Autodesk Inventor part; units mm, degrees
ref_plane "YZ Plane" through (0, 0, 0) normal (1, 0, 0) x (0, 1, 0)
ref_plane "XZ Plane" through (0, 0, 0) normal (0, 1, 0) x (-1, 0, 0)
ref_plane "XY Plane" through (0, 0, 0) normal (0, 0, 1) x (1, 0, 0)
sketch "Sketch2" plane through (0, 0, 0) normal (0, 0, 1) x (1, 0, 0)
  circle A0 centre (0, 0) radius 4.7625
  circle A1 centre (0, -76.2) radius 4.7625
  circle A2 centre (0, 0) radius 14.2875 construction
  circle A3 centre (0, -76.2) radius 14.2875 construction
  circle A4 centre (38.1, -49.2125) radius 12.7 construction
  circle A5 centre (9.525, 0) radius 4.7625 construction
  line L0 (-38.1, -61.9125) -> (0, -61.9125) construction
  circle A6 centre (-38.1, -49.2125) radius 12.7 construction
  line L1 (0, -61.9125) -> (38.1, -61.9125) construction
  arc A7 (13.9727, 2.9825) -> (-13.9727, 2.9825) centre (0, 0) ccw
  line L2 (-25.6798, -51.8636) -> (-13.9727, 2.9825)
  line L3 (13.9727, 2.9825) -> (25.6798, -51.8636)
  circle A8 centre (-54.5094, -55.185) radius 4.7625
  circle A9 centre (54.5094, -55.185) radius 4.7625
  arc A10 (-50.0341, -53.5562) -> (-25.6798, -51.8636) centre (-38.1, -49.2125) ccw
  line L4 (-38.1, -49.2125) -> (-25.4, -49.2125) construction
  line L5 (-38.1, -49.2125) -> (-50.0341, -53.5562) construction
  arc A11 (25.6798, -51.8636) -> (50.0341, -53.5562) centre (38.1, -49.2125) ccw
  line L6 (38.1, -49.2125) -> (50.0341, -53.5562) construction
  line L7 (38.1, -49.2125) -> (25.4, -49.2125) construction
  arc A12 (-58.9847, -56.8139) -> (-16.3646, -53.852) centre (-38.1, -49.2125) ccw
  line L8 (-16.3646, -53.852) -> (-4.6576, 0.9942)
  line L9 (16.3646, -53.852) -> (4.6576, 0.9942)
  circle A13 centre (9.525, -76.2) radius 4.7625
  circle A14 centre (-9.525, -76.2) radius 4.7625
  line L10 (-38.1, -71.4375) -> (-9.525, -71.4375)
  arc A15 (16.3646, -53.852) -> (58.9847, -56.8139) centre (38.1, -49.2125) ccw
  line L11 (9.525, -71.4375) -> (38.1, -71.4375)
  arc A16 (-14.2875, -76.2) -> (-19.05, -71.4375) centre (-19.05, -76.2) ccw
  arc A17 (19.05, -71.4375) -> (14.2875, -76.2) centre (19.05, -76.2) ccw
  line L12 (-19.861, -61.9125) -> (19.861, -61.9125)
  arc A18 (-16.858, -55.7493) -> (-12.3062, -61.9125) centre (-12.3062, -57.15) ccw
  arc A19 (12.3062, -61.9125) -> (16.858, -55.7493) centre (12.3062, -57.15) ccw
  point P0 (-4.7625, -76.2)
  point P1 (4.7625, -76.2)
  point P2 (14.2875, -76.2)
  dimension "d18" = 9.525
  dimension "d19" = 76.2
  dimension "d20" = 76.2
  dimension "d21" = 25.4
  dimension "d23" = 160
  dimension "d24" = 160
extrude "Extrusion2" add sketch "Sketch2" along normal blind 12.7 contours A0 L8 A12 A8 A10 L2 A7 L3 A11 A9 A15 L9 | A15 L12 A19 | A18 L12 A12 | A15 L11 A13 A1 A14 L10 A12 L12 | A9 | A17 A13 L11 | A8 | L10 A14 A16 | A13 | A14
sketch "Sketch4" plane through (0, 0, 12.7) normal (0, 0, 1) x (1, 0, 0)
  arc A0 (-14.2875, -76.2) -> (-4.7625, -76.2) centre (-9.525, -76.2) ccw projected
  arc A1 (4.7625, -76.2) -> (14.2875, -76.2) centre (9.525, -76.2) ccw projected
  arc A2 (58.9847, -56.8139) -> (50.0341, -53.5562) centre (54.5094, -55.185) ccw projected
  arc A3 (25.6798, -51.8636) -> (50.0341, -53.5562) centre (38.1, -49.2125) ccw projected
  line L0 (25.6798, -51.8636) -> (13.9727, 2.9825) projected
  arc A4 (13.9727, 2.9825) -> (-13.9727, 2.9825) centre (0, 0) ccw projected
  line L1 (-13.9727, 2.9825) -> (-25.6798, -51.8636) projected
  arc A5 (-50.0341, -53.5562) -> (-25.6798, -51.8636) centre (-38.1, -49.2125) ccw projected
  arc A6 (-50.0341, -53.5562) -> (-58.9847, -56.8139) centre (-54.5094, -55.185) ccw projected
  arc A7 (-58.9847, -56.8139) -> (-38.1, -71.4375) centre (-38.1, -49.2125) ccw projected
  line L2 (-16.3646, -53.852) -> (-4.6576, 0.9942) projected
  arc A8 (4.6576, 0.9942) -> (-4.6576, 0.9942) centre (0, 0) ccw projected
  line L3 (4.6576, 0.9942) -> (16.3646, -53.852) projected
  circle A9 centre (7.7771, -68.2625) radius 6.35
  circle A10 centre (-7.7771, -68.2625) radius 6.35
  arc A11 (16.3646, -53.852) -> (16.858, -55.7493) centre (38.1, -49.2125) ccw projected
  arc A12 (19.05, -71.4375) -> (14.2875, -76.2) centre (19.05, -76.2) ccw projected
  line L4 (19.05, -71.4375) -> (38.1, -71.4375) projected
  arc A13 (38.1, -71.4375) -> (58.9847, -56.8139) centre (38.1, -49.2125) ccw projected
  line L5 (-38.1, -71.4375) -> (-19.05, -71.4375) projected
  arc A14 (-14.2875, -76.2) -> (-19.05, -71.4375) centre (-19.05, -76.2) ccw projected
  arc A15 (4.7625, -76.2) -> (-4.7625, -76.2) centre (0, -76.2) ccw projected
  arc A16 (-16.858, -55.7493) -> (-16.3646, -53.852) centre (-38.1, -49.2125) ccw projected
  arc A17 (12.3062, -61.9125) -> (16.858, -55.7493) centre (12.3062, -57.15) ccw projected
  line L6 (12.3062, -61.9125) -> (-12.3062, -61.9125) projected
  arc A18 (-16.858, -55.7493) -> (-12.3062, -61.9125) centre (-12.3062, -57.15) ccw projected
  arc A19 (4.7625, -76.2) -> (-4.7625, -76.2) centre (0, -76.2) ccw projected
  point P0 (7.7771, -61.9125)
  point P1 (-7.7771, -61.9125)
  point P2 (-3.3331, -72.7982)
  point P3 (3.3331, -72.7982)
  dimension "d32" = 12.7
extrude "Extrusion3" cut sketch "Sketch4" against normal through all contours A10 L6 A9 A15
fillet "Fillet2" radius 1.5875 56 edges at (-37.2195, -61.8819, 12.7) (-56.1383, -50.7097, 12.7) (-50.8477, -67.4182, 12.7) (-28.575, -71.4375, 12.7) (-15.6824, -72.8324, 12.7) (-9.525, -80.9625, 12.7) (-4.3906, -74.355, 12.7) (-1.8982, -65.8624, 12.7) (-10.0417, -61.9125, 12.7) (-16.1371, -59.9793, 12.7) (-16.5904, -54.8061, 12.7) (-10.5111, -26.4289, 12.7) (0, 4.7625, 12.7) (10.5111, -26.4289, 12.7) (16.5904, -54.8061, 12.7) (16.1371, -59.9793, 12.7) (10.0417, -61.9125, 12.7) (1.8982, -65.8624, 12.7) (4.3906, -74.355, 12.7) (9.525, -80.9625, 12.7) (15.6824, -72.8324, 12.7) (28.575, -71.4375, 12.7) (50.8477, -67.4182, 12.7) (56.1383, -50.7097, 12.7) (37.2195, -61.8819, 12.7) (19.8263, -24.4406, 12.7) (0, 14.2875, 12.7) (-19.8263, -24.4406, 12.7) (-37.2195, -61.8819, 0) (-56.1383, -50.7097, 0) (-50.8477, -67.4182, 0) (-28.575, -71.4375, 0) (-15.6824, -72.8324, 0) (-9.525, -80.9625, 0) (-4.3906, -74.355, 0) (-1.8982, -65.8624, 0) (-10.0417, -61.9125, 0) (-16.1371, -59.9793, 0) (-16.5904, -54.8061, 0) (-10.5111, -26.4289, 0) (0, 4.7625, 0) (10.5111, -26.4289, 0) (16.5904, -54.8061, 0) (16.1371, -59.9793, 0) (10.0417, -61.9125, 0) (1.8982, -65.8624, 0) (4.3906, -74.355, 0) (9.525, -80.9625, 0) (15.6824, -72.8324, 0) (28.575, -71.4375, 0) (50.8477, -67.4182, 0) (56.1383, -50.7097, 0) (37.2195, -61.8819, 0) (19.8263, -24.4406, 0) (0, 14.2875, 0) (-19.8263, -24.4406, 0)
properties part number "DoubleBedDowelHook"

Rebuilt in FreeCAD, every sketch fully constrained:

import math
import FreeCAD as App
import Part
import Sketcher
from FreeCAD import Vector
Q = App.Units.Quantity


def edges_at(feature, points):
    """Names of the edges that pass closest to the given points."""
    edges = feature.Shape.Edges
    near = lambda p: min(range(len(edges)), key=lambda i: edges[i].distToShape(Part.Vertex(*p))[0])
    return sorted({f"Edge{near(p) + 1}" for p in points})

doc = App.newDocument("Part")
params = doc.addObject("Spreadsheet::Sheet", "Params")
for row, (alias, value) in enumerate([
    ("sketch1_radius", "0.5 in"),
    ("sketch1_radius2", "0.1875 in"),
    ("sketch1_width", "0.75 in"),
    ("pad1_length", "0.5 in"),
    ("sketch2_radius", "0.25 in"),
    ("sketch2_radius2", "0.1875 in"),
    ("fillet_radius", "0.0625 in"),
], start=1):
    params.set(f"A{row}", alias)
    params.set(f"B{row}", "=" + value)
    params.setAlias(f"B{row}", alias)

body = doc.addObject("PartDesign::Body", "Body")

# Sketch on XY plane
sketch1 = body.newObject("Sketcher::SketchObject", "Sketch")
sketch1.AttachmentSupport = (doc.getObject("XY_Plane"), [""])
sketch1.MapMode = "FlatFace"
sketch1.addGeometry(Part.ArcOfCircle(Part.Circle(Vector(-38.1, -49.2, 0), Vector(0, 0, 1), 22.2), math.radians(-160), math.radians(-90)), False)
sketch1.addGeometry(Part.LineSegment(Vector(-38.1, -71.4, 0), Vector(-19.1, -71.4, 0)), False)
sketch1.addGeometry(Part.ArcOfCircle(Part.Circle(Vector(-19.1, -76.2, 0), Vector(0, 0, 1), 4.8), math.radians(0), math.radians(90)), False)
sketch1.addGeometry(Part.ArcOfCircle(Part.Circle(Vector(-9.5, -76.2, 0), Vector(0, 0, 1), 4.8), math.radians(180), math.radians(360)), False)
sketch1.addGeometry(Part.ArcOfCircle(Part.Circle(Vector(0, -76.2, 0), Vector(0, 0, 1), 4.8), math.radians(0), math.radians(180)), False)
sketch1.addGeometry(Part.ArcOfCircle(Part.Circle(Vector(9.5, -76.2, 0), Vector(0, 0, 1), 4.8), math.radians(180), math.radians(360)), False)
sketch1.addGeometry(Part.ArcOfCircle(Part.Circle(Vector(19.1, -76.2, 0), Vector(0, 0, 1), 4.8), math.radians(90), math.radians(180)), False)
sketch1.addGeometry(Part.LineSegment(Vector(19.1, -71.4, 0), Vector(38.1, -71.4, 0)), False)
sketch1.addGeometry(Part.ArcOfCircle(Part.Circle(Vector(38.1, -49.2, 0), Vector(0, 0, 1), 22.2), math.radians(-90), math.radians(-20)), False)
sketch1.addGeometry(Part.ArcOfCircle(Part.Circle(Vector(54.5, -55.2, 0), Vector(0, 0, 1), 4.8), math.radians(-20), math.radians(160)), False)
sketch1.addGeometry(Part.ArcOfCircle(Part.Circle(Vector(38.1, -49.2, 0), Vector(0, 0, 1), 12.7), math.radians(-168), math.radians(-20)), False)
sketch1.addGeometry(Part.LineSegment(Vector(25.7, -51.9, 0), Vector(14, 3, 0)), False)
sketch1.addGeometry(Part.ArcOfCircle(Part.Circle(Vector(0, 0, 0), Vector(0, 0, 1), 14.3), math.radians(12), math.radians(168)), False)
sketch1.addGeometry(Part.LineSegment(Vector(-14, 3, 0), Vector(-25.7, -51.9, 0)), False)
sketch1.addGeometry(Part.ArcOfCircle(Part.Circle(Vector(-38.1, -49.2, 0), Vector(0, 0, 1), 12.7), math.radians(-160), math.radians(-12)), False)
sketch1.addGeometry(Part.ArcOfCircle(Part.Circle(Vector(-54.5, -55.2, 0), Vector(0, 0, 1), 4.8), math.radians(20), math.radians(200)), False)
sketch1.addGeometry(Part.ArcOfCircle(Part.Circle(Vector(0, 0, 0), Vector(0, 0, 1), 4.8), math.radians(12), math.radians(168)), False)
sketch1.addGeometry(Part.LineSegment(Vector(4.7, 1, 0), Vector(16.4, -53.9, 0)), False)
sketch1.addGeometry(Part.ArcOfCircle(Part.Circle(Vector(38.1, -49.2, 0), Vector(0, 0, 1), 22.2), math.radians(-167.95), math.radians(-162.9)), False)
sketch1.addGeometry(Part.ArcOfCircle(Part.Circle(Vector(12.3, -57.1, 0), Vector(0, 0, 1), 4.8), math.radians(-90), math.radians(17)), False)
sketch1.addGeometry(Part.LineSegment(Vector(12.3, -61.9, 0), Vector(-12.3, -61.9, 0)), False)
sketch1.addGeometry(Part.ArcOfCircle(Part.Circle(Vector(-12.3, -57.1, 0), Vector(0, 0, 1), 4.8), math.radians(163), math.radians(270)), False)
sketch1.addGeometry(Part.ArcOfCircle(Part.Circle(Vector(-38.1, -49.2, 0), Vector(0, 0, 1), 22.2), math.radians(-17.1), math.radians(-12.05)), False)
sketch1.addGeometry(Part.LineSegment(Vector(-16.4, -53.9, 0), Vector(-4.7, 1, 0)), False)
sketch1.addConstraint(Sketcher.Constraint("Tangent", 0, 2, 1, 1))
sketch1.addConstraint(Sketcher.Constraint("Tangent", 1, 2, 2, 2))
sketch1.addConstraint(Sketcher.Constraint("Tangent", 2, 1, 3, 1))
sketch1.addConstraint(Sketcher.Constraint("Tangent", 3, 2, 4, 2))
sketch1.addConstraint(Sketcher.Constraint("Tangent", 4, 1, 5, 1))
sketch1.addConstraint(Sketcher.Constraint("Tangent", 5, 2, 6, 2))
sketch1.addConstraint(Sketcher.Constraint("Tangent", 6, 1, 7, 1))
sketch1.addConstraint(Sketcher.Constraint("Tangent", 7, 2, 8, 1))
sketch1.addConstraint(Sketcher.Constraint("Tangent", 8, 2, 9, 1))
sketch1.addConstraint(Sketcher.Constraint("Tangent", 9, 2, 10, 2))
sketch1.addConstraint(Sketcher.Constraint("Tangent", 10, 1, 11, 1))
sketch1.addConstraint(Sketcher.Constraint("Tangent", 11, 2, 12, 1))
sketch1.addConstraint(Sketcher.Constraint("Tangent", 12, 2, 13, 1))
sketch1.addConstraint(Sketcher.Constraint("Tangent", 13, 2, 14, 2))
sketch1.addConstraint(Sketcher.Constraint("Tangent", 14, 1, 15, 1))
sketch1.addConstraint(Sketcher.Constraint("Tangent", 15, 2, 0, 1))
sketch1.addConstraint(Sketcher.Constraint("Tangent", 16, 1, 17, 1))
sketch1.addConstraint(Sketcher.Constraint("Tangent", 17, 2, 18, 1))
sketch1.addConstraint(Sketcher.Constraint("Tangent", 18, 2, 19, 2))
sketch1.addConstraint(Sketcher.Constraint("Tangent", 19, 1, 20, 1))
sketch1.addConstraint(Sketcher.Constraint("Tangent", 20, 2, 21, 2))
sketch1.addConstraint(Sketcher.Constraint("Tangent", 21, 1, 22, 1))
sketch1.addConstraint(Sketcher.Constraint("Tangent", 22, 2, 23, 1))
sketch1.addConstraint(Sketcher.Constraint("Tangent", 23, 2, 16, 2))
sketch1.addConstraint(Sketcher.Constraint("Horizontal", 1))
sketch1.addConstraint(Sketcher.Constraint("Horizontal", 7))
sketch1.addConstraint(Sketcher.Constraint("Horizontal", 20))
sketch1.addConstraint(Sketcher.Constraint("Coincident", 12, 3, -1, 1))
sketch1.addConstraint(Sketcher.Constraint("Coincident", 16, 3, -1, 1))
sketch1.addConstraint(Sketcher.Constraint("Coincident", 10, 3, 8, 3))
sketch1.addConstraint(Sketcher.Constraint("Coincident", 14, 3, 0, 3))
sketch1.addConstraint(Sketcher.Constraint("Coincident", 18, 3, 8, 3))
sketch1.addConstraint(Sketcher.Constraint("Coincident", 22, 3, 0, 3))
sketch1.addConstraint(Sketcher.Constraint("Equal", 2, 3))
sketch1.addConstraint(Sketcher.Constraint("Equal", 3, 4))
sketch1.addConstraint(Sketcher.Constraint("Equal", 4, 5))
sketch1.addConstraint(Sketcher.Constraint("Equal", 5, 6))
sketch1.addConstraint(Sketcher.Constraint("Equal", 0, 8))
sketch1.addConstraint(Sketcher.Constraint("Equal", 6, 9))
sketch1.addConstraint(Sketcher.Constraint("Equal", 10, 14))
sketch1.addConstraint(Sketcher.Constraint("Equal", 15, 16))
sketch1.addConstraint(Sketcher.Constraint("Equal", 8, 18))
sketch1.addConstraint(Sketcher.Constraint("Equal", 16, 19))
sketch1.addConstraint(Sketcher.Constraint("Equal", 19, 21))
sketch1.addConstraint(Sketcher.Constraint("Equal", 18, 22))
sketch1.addConstraint(Sketcher.Constraint("Symmetric", 3, 3, 5, 3, -2))
sketch1.addConstraint(Sketcher.Constraint("Symmetric", 0, 3, 8, 3, -2))
sketch1.addConstraint(Sketcher.Constraint("Parallel", 11, 17))
sketch1.addConstraint(Sketcher.Constraint("Horizontal", 2, 3, 3, 3))
sketch1.addConstraint(Sketcher.Constraint("Horizontal", 3, 3, 4, 3))
sketch1.addConstraint(Sketcher.Constraint("Horizontal", 9, 3, 15, 3))
sketch1.addConstraint(Sketcher.Constraint("Radius", 10, Q("0.5 in")))
sketch1.addConstraint(Sketcher.Constraint("DistanceY", 2, 3, -1, 1, Q("3 in")))
sketch1.addConstraint(Sketcher.Constraint("Radius", 2, Q("0.1875 in")))
sketch1.addConstraint(Sketcher.Constraint("DistanceY", 6, 1, 19, 1, Q("0.375 in")))
sketch1.addConstraint(Sketcher.Constraint("DistanceX", 1, 1, 1, 2, Q("0.75 in")))
sketch1.addConstraint(Sketcher.Constraint("DistanceY", 9, 2, 8, 3, Q("0.171 in")))
sketch1.setExpression("Constraints[51]", "Params.sketch1_radius")
sketch1.setExpression("Constraints[53]", "Params.sketch1_radius2")
sketch1.setExpression("Constraints[55]", "Params.sketch1_width")
pad1 = body.newObject("PartDesign::Pad", "Pad")
pad1.Profile = sketch1
pad1.setExpression("Length", "Params.pad1_length")

# Sketch on XY plane
sketch2 = body.newObject("Sketcher::SketchObject", "Sketch001")
sketch2.AttachmentSupport = (doc.getObject("XY_Plane"), [""])
sketch2.MapMode = "FlatFace"
sketch2.AttachmentOffset = App.Placement(Vector(0, 0, 0.5 * 25.4), App.Rotation())
sketch2.addGeometry(Part.ArcOfCircle(Part.Circle(Vector(-7.8, -68.3, 0), Vector(0, 0, 1), 6.3), math.radians(-46), math.radians(90)), False)
sketch2.addGeometry(Part.ArcOfCircle(Part.Circle(Vector(0, -76.2, 0), Vector(0, 0, 1), 4.8), math.radians(46), math.radians(134)), False)
sketch2.addGeometry(Part.ArcOfCircle(Part.Circle(Vector(7.8, -68.3, 0), Vector(0, 0, 1), 6.3), math.radians(90), math.radians(226)), False)
sketch2.addGeometry(Part.LineSegment(Vector(7.8, -61.9, 0), Vector(-7.8, -61.9, 0)), False)
sketch2.addConstraint(Sketcher.Constraint("Tangent", 0, 1, 1, 2))
sketch2.addConstraint(Sketcher.Constraint("Tangent", 1, 1, 2, 2))
sketch2.addConstraint(Sketcher.Constraint("Tangent", 2, 1, 3, 1))
sketch2.addConstraint(Sketcher.Constraint("Tangent", 3, 2, 0, 2))
sketch2.addConstraint(Sketcher.Constraint("Horizontal", 3))
sketch2.addConstraint(Sketcher.Constraint("Equal", 0, 2))
sketch2.addConstraint(Sketcher.Constraint("PointOnObject", 1, 3, -2))
sketch2.addConstraint(Sketcher.Constraint("Radius", 0, Q("0.25 in")))
sketch2.addConstraint(Sketcher.Constraint("DistanceY", 1, 3, -1, 1, Q("3 in")))
sketch2.addConstraint(Sketcher.Constraint("Radius", 1, Q("0.1875 in")))
sketch2.addConstraint(Sketcher.Constraint("DistanceY", 0, 3, -1, 1, Q("2.6875 in")))
sketch2.setExpression("Constraints[7]", "Params.sketch2_radius")
sketch2.setExpression("Constraints[9]", "Params.sketch2_radius2")
pocket1 = body.newObject("PartDesign::Pocket", "Pocket")
pocket1.Profile = sketch2
pocket1.Type = "ThroughAll"
doc.recompute()

fillet = body.newObject("PartDesign::Fillet", "Fillet")
fillet.Base = (pocket1, edges_at(pocket1, [
    (-37.219, -61.882, 12.7),
    (-56.138, -50.71, 12.7),
    (-50.848, -67.418, 12.7),
    (-28.575, -71.438, 12.7),
    (-15.682, -72.832, 12.7),
    (-9.525, -80.963, 12.7),
    (-4.391, -74.355, 12.7),
    (-1.898, -65.862, 12.7),
    (-10.042, -61.913, 12.7),
    (-16.137, -59.979, 12.7),
    (-16.59, -54.806, 12.7),
    (-10.511, -26.429, 12.7),
    (0, 4.763, 12.7),
    (10.511, -26.429, 12.7),
    (16.59, -54.806, 12.7),
    (16.137, -59.979, 12.7),
    (10.042, -61.913, 12.7),
    (1.898, -65.862, 12.7),
    (4.391, -74.355, 12.7),
    (9.525, -80.963, 12.7),
    (15.682, -72.832, 12.7),
    (28.575, -71.438, 12.7),
    (50.848, -67.418, 12.7),
    (56.138, -50.71, 12.7),
    (37.219, -61.882, 12.7),
    (19.826, -24.441, 12.7),
    (0, 14.287, 12.7),
    (-19.826, -24.441, 12.7),
    (-37.219, -61.882, 0),
    (-56.138, -50.71, 0),
    (-50.848, -67.418, 0),
    (-28.575, -71.438, 0),
    (-15.682, -72.832, 0),
    (-9.525, -80.963, 0),
    (-4.391, -74.355, 0),
    (-1.898, -65.862, 0),
    (-10.042, -61.913, 0),
    (-16.137, -59.979, 0),
    (-16.59, -54.806, 0),
    (-10.511, -26.429, 0),
    (0, 4.763, 0),
    (10.511, -26.429, 0),
    (16.59, -54.806, 0),
    (16.137, -59.979, 0),
    (10.042, -61.913, 0),
    (1.898, -65.862, 0),
    (4.391, -74.355, 0),
    (9.525, -80.963, 0),
    (15.682, -72.832, 0),
    (28.575, -71.438, 0),
    (50.848, -67.418, 0),
    (56.138, -50.71, 0),
    (37.219, -61.882, 0),
    (19.826, -24.441, 0),
    (0, 14.287, 0),
    (-19.826, -24.441, 0),
]))
fillet.setExpression("Radius", "Params.fillet_radius")

doc.recompute()
